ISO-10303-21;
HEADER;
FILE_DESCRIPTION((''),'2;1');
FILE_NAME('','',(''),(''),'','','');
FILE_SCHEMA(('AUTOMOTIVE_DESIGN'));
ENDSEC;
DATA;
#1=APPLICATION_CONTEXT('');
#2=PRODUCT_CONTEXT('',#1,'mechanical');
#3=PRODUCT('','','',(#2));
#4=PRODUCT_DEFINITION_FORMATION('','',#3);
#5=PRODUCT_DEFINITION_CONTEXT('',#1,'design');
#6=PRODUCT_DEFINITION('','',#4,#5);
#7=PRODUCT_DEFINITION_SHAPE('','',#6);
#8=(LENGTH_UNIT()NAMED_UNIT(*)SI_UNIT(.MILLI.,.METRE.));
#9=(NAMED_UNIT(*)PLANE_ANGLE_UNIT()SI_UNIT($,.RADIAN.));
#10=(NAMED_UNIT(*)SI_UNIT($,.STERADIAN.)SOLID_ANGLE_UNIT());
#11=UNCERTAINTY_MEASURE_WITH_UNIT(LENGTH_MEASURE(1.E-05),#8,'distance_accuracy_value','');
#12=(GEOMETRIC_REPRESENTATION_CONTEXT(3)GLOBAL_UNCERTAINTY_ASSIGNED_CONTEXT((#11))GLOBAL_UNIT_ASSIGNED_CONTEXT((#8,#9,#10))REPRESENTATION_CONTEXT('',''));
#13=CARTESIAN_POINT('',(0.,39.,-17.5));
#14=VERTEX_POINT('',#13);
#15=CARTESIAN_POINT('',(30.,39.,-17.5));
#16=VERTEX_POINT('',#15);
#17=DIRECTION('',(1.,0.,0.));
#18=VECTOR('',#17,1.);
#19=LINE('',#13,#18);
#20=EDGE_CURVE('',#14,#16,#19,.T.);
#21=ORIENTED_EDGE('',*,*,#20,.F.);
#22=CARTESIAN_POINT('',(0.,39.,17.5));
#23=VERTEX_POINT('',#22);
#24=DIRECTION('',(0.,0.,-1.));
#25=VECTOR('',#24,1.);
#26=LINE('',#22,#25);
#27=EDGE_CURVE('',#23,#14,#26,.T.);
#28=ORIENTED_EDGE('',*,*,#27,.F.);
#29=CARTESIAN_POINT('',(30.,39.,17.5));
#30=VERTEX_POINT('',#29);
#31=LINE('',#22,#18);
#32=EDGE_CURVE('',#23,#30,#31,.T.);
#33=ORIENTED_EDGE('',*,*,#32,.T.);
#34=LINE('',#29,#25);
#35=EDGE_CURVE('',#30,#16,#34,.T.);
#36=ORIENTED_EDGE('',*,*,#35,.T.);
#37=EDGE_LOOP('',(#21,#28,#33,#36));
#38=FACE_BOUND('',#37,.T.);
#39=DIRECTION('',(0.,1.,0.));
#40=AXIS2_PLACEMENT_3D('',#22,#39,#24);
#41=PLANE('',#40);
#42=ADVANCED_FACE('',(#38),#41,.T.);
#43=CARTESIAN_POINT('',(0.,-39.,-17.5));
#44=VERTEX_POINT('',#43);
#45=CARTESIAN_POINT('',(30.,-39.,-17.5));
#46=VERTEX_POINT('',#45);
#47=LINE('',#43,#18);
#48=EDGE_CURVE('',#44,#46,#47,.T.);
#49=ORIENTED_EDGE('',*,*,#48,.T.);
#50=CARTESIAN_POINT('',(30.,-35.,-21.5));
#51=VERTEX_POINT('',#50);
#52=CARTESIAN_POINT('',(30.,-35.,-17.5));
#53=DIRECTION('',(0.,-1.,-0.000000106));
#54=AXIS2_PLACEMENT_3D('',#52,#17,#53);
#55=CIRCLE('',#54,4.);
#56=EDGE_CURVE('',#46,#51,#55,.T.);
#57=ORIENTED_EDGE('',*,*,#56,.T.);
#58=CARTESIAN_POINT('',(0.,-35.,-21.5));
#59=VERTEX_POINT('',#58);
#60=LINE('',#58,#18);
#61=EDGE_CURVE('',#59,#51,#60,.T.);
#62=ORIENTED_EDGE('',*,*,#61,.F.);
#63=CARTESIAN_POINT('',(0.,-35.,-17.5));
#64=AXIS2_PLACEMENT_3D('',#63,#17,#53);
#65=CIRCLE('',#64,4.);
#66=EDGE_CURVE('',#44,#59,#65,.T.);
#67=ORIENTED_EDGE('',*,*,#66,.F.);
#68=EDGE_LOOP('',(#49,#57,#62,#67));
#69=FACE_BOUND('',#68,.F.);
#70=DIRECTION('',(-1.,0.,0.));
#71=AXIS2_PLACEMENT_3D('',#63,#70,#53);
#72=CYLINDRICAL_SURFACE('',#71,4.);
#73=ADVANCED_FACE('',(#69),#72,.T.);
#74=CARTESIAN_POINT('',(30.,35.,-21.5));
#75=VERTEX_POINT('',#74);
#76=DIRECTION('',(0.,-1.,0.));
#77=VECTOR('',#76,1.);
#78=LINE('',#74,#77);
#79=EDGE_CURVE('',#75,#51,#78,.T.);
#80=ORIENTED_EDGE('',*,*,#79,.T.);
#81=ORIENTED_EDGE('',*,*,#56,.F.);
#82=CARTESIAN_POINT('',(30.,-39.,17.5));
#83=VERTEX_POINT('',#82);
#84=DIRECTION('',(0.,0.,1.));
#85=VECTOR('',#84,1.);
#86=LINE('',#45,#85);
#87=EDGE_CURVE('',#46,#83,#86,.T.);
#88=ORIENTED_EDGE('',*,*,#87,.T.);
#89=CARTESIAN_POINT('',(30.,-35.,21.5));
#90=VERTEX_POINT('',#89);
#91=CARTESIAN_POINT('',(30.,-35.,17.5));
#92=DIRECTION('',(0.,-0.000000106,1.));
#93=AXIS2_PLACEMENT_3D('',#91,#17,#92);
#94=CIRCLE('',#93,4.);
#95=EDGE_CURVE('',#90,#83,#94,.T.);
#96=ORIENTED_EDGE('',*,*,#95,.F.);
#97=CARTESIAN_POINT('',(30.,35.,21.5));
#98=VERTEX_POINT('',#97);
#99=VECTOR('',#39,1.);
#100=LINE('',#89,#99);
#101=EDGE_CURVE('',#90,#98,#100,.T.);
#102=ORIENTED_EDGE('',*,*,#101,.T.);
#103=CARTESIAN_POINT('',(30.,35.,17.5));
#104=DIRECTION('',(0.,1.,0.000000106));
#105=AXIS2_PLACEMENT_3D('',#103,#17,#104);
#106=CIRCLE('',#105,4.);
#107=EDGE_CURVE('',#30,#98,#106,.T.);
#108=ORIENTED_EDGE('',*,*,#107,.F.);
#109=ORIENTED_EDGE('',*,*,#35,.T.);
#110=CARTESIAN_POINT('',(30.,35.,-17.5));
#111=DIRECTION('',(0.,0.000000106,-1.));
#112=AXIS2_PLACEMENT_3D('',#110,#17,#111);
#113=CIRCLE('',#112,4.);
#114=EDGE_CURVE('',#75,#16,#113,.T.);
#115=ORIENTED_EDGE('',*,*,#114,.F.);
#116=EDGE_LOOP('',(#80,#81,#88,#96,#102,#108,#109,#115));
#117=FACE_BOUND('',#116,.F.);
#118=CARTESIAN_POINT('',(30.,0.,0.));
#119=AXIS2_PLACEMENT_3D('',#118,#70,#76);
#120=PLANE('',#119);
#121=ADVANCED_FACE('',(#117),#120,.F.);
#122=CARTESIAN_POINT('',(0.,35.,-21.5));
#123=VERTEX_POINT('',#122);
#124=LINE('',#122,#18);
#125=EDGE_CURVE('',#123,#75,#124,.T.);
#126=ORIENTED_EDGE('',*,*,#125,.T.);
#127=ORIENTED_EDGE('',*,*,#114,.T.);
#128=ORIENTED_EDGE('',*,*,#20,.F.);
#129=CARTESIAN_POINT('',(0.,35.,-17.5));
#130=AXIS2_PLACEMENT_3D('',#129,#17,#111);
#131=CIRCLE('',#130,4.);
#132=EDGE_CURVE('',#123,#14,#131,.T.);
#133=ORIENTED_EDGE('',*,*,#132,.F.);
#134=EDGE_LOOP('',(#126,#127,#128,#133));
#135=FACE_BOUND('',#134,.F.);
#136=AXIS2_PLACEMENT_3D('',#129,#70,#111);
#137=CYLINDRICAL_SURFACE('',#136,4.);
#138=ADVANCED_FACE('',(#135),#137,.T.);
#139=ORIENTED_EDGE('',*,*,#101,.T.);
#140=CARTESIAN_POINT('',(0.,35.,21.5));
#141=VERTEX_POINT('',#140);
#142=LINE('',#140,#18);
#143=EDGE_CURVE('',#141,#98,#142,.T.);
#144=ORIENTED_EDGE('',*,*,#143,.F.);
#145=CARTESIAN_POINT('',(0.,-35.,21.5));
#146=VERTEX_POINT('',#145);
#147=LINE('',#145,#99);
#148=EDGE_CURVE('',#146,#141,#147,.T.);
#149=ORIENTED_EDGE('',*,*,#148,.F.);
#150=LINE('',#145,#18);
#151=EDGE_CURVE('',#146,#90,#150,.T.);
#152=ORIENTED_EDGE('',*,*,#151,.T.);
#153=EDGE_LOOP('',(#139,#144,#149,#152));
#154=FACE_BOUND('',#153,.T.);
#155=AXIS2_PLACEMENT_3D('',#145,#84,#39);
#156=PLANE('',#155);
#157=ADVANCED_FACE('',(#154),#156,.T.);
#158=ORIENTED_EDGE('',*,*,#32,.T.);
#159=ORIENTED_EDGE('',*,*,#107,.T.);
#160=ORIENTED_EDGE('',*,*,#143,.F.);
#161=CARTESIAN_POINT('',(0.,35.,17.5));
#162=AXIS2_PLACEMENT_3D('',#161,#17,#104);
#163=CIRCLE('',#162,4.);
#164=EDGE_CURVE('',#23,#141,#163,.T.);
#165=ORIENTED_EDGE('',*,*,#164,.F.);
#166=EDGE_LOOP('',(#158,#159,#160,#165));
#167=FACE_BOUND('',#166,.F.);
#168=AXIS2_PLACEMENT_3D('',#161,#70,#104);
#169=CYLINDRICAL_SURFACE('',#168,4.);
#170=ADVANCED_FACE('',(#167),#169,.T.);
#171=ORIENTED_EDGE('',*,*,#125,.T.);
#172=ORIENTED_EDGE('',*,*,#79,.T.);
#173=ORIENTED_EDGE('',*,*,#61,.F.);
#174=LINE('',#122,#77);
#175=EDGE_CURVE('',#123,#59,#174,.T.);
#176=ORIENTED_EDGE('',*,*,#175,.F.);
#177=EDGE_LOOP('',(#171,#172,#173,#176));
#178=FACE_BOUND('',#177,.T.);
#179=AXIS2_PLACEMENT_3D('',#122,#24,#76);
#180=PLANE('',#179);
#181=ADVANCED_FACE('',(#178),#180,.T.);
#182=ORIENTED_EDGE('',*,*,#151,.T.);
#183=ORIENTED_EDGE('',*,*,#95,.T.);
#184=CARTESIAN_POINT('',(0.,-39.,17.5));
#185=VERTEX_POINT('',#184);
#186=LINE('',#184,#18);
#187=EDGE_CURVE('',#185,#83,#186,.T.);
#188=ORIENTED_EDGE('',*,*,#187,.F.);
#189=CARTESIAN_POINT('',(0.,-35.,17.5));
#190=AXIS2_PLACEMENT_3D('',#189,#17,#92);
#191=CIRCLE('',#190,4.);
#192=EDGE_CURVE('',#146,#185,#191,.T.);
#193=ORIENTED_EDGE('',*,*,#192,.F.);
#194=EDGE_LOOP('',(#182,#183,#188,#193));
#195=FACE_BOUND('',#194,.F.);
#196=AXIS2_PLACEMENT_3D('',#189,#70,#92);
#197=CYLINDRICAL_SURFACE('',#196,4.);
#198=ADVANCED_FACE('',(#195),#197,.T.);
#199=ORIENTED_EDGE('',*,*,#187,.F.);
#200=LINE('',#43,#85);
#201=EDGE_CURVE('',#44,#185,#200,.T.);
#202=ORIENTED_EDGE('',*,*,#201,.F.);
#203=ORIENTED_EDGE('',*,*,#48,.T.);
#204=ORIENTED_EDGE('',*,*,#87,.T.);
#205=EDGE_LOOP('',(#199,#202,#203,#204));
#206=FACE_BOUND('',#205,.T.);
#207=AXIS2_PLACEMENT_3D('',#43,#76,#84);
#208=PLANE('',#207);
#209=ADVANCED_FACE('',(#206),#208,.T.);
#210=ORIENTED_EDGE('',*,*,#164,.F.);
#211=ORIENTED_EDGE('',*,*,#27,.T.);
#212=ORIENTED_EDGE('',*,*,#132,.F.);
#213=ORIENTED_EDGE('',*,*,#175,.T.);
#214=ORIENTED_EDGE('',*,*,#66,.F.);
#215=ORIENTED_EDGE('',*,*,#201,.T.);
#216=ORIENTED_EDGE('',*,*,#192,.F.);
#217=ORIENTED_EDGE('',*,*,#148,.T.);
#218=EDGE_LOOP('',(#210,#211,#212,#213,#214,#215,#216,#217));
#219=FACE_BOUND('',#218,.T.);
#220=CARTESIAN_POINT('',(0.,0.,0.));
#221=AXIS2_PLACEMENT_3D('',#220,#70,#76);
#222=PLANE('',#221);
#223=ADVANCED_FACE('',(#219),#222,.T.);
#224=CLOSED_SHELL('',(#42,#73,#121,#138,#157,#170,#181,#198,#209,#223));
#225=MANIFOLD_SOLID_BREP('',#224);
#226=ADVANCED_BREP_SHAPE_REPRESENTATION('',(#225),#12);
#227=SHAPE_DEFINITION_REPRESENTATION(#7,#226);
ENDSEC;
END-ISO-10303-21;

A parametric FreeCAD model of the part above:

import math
import FreeCAD as App
import Part
import Sketcher
from FreeCAD import Vector
Q = App.Units.Quantity

doc = App.newDocument("Part")
params = doc.addObject("Spreadsheet::Sheet", "Params")
for row, (alias, value) in enumerate([
    ("sketch1_radius", "4 mm"),
    ("sketch1_width", "70 mm"),
    ("sketch1_height", "35 mm"),
    ("pad1_length", "30 mm"),
], start=1):
    params.set(f"A{row}", alias)
    params.set(f"B{row}", "=" + value)
    params.setAlias(f"B{row}", alias)

body = doc.addObject("PartDesign::Body", "Body")

sketch1 = body.newObject("Sketcher::SketchObject", "Sketch")
sketch1.AttachmentSupport = (doc.getObject("YZ_Plane"), [""])
sketch1.MapMode = "FlatFace"
sketch1.addGeometry(Part.LineSegment(Vector(35, 21.5, 0), Vector(-35, 21.5, 0)), False)
sketch1.addGeometry(Part.ArcOfCircle(Part.Circle(Vector(-35, 17.5, 0), Vector(0, 0, 1), 4), math.radians(90.000006), math.radians(179.999994)), False)
sketch1.addGeometry(Part.LineSegment(Vector(-39, 17.5, 0), Vector(-39, -17.5, 0)), False)
sketch1.addGeometry(Part.ArcOfCircle(Part.Circle(Vector(-35, -17.5, 0), Vector(0, 0, 1), 4), math.radians(-179.999994), math.radians(-90.000006)), False)
sketch1.addGeometry(Part.LineSegment(Vector(-35, -21.5, 0), Vector(35, -21.5, 0)), False)
sketch1.addGeometry(Part.ArcOfCircle(Part.Circle(Vector(35, -17.5, 0), Vector(0, 0, 1), 4), math.radians(-89.999994), math.radians(-0.000006)), False)
sketch1.addGeometry(Part.LineSegment(Vector(39, -17.5, 0), Vector(39, 17.5, 0)), False)
sketch1.addGeometry(Part.ArcOfCircle(Part.Circle(Vector(35, 17.5, 0), Vector(0, 0, 1), 4), math.radians(0.000006), math.radians(89.999994)), False)
sketch1.addConstraint(Sketcher.Constraint("Tangent", 0, 2, 1, 1))
sketch1.addConstraint(Sketcher.Constraint("Tangent", 1, 2, 2, 1))
sketch1.addConstraint(Sketcher.Constraint("Tangent", 2, 2, 3, 1))
sketch1.addConstraint(Sketcher.Constraint("Tangent", 3, 2, 4, 1))
sketch1.addConstraint(Sketcher.Constraint("Tangent", 4, 2, 5, 1))
sketch1.addConstraint(Sketcher.Constraint("Tangent", 5, 2, 6, 1))
sketch1.addConstraint(Sketcher.Constraint("Tangent", 6, 2, 7, 1))
sketch1.addConstraint(Sketcher.Constraint("Tangent", 7, 2, 0, 1))
sketch1.addConstraint(Sketcher.Constraint("Horizontal", 0))
sketch1.addConstraint(Sketcher.Constraint("Vertical", 2))
sketch1.addConstraint(Sketcher.Constraint("Horizontal", 4))
sketch1.addConstraint(Sketcher.Constraint("Vertical", 6))
sketch1.addConstraint(Sketcher.Constraint("Equal", 1, 3))
sketch1.addConstraint(Sketcher.Constraint("Equal", 3, 5))
sketch1.addConstraint(Sketcher.Constraint("Equal", 5, 7))
sketch1.addConstraint(Sketcher.Constraint("Symmetric", 1, 3, 5, 3, -1, 1))
sketch1.addConstraint(Sketcher.Constraint("Radius", 1, Q("4 mm")))
sketch1.addConstraint(Sketcher.Constraint("DistanceX", 0, 2, 0, 1, Q("70 mm")))
sketch1.addConstraint(Sketcher.Constraint("DistanceY", 2, 2, 2, 1, Q("35 mm")))
sketch1.setExpression("Constraints[16]", "Params.sketch1_radius")
sketch1.setExpression("Constraints[17]", "Params.sketch1_width")
sketch1.setExpression("Constraints[18]", "Params.sketch1_height")
pad1 = body.newObject("PartDesign::Pad", "Pad")
pad1.Profile = sketch1
pad1.setExpression("Length", "Params.pad1_length")

doc.recompute()
